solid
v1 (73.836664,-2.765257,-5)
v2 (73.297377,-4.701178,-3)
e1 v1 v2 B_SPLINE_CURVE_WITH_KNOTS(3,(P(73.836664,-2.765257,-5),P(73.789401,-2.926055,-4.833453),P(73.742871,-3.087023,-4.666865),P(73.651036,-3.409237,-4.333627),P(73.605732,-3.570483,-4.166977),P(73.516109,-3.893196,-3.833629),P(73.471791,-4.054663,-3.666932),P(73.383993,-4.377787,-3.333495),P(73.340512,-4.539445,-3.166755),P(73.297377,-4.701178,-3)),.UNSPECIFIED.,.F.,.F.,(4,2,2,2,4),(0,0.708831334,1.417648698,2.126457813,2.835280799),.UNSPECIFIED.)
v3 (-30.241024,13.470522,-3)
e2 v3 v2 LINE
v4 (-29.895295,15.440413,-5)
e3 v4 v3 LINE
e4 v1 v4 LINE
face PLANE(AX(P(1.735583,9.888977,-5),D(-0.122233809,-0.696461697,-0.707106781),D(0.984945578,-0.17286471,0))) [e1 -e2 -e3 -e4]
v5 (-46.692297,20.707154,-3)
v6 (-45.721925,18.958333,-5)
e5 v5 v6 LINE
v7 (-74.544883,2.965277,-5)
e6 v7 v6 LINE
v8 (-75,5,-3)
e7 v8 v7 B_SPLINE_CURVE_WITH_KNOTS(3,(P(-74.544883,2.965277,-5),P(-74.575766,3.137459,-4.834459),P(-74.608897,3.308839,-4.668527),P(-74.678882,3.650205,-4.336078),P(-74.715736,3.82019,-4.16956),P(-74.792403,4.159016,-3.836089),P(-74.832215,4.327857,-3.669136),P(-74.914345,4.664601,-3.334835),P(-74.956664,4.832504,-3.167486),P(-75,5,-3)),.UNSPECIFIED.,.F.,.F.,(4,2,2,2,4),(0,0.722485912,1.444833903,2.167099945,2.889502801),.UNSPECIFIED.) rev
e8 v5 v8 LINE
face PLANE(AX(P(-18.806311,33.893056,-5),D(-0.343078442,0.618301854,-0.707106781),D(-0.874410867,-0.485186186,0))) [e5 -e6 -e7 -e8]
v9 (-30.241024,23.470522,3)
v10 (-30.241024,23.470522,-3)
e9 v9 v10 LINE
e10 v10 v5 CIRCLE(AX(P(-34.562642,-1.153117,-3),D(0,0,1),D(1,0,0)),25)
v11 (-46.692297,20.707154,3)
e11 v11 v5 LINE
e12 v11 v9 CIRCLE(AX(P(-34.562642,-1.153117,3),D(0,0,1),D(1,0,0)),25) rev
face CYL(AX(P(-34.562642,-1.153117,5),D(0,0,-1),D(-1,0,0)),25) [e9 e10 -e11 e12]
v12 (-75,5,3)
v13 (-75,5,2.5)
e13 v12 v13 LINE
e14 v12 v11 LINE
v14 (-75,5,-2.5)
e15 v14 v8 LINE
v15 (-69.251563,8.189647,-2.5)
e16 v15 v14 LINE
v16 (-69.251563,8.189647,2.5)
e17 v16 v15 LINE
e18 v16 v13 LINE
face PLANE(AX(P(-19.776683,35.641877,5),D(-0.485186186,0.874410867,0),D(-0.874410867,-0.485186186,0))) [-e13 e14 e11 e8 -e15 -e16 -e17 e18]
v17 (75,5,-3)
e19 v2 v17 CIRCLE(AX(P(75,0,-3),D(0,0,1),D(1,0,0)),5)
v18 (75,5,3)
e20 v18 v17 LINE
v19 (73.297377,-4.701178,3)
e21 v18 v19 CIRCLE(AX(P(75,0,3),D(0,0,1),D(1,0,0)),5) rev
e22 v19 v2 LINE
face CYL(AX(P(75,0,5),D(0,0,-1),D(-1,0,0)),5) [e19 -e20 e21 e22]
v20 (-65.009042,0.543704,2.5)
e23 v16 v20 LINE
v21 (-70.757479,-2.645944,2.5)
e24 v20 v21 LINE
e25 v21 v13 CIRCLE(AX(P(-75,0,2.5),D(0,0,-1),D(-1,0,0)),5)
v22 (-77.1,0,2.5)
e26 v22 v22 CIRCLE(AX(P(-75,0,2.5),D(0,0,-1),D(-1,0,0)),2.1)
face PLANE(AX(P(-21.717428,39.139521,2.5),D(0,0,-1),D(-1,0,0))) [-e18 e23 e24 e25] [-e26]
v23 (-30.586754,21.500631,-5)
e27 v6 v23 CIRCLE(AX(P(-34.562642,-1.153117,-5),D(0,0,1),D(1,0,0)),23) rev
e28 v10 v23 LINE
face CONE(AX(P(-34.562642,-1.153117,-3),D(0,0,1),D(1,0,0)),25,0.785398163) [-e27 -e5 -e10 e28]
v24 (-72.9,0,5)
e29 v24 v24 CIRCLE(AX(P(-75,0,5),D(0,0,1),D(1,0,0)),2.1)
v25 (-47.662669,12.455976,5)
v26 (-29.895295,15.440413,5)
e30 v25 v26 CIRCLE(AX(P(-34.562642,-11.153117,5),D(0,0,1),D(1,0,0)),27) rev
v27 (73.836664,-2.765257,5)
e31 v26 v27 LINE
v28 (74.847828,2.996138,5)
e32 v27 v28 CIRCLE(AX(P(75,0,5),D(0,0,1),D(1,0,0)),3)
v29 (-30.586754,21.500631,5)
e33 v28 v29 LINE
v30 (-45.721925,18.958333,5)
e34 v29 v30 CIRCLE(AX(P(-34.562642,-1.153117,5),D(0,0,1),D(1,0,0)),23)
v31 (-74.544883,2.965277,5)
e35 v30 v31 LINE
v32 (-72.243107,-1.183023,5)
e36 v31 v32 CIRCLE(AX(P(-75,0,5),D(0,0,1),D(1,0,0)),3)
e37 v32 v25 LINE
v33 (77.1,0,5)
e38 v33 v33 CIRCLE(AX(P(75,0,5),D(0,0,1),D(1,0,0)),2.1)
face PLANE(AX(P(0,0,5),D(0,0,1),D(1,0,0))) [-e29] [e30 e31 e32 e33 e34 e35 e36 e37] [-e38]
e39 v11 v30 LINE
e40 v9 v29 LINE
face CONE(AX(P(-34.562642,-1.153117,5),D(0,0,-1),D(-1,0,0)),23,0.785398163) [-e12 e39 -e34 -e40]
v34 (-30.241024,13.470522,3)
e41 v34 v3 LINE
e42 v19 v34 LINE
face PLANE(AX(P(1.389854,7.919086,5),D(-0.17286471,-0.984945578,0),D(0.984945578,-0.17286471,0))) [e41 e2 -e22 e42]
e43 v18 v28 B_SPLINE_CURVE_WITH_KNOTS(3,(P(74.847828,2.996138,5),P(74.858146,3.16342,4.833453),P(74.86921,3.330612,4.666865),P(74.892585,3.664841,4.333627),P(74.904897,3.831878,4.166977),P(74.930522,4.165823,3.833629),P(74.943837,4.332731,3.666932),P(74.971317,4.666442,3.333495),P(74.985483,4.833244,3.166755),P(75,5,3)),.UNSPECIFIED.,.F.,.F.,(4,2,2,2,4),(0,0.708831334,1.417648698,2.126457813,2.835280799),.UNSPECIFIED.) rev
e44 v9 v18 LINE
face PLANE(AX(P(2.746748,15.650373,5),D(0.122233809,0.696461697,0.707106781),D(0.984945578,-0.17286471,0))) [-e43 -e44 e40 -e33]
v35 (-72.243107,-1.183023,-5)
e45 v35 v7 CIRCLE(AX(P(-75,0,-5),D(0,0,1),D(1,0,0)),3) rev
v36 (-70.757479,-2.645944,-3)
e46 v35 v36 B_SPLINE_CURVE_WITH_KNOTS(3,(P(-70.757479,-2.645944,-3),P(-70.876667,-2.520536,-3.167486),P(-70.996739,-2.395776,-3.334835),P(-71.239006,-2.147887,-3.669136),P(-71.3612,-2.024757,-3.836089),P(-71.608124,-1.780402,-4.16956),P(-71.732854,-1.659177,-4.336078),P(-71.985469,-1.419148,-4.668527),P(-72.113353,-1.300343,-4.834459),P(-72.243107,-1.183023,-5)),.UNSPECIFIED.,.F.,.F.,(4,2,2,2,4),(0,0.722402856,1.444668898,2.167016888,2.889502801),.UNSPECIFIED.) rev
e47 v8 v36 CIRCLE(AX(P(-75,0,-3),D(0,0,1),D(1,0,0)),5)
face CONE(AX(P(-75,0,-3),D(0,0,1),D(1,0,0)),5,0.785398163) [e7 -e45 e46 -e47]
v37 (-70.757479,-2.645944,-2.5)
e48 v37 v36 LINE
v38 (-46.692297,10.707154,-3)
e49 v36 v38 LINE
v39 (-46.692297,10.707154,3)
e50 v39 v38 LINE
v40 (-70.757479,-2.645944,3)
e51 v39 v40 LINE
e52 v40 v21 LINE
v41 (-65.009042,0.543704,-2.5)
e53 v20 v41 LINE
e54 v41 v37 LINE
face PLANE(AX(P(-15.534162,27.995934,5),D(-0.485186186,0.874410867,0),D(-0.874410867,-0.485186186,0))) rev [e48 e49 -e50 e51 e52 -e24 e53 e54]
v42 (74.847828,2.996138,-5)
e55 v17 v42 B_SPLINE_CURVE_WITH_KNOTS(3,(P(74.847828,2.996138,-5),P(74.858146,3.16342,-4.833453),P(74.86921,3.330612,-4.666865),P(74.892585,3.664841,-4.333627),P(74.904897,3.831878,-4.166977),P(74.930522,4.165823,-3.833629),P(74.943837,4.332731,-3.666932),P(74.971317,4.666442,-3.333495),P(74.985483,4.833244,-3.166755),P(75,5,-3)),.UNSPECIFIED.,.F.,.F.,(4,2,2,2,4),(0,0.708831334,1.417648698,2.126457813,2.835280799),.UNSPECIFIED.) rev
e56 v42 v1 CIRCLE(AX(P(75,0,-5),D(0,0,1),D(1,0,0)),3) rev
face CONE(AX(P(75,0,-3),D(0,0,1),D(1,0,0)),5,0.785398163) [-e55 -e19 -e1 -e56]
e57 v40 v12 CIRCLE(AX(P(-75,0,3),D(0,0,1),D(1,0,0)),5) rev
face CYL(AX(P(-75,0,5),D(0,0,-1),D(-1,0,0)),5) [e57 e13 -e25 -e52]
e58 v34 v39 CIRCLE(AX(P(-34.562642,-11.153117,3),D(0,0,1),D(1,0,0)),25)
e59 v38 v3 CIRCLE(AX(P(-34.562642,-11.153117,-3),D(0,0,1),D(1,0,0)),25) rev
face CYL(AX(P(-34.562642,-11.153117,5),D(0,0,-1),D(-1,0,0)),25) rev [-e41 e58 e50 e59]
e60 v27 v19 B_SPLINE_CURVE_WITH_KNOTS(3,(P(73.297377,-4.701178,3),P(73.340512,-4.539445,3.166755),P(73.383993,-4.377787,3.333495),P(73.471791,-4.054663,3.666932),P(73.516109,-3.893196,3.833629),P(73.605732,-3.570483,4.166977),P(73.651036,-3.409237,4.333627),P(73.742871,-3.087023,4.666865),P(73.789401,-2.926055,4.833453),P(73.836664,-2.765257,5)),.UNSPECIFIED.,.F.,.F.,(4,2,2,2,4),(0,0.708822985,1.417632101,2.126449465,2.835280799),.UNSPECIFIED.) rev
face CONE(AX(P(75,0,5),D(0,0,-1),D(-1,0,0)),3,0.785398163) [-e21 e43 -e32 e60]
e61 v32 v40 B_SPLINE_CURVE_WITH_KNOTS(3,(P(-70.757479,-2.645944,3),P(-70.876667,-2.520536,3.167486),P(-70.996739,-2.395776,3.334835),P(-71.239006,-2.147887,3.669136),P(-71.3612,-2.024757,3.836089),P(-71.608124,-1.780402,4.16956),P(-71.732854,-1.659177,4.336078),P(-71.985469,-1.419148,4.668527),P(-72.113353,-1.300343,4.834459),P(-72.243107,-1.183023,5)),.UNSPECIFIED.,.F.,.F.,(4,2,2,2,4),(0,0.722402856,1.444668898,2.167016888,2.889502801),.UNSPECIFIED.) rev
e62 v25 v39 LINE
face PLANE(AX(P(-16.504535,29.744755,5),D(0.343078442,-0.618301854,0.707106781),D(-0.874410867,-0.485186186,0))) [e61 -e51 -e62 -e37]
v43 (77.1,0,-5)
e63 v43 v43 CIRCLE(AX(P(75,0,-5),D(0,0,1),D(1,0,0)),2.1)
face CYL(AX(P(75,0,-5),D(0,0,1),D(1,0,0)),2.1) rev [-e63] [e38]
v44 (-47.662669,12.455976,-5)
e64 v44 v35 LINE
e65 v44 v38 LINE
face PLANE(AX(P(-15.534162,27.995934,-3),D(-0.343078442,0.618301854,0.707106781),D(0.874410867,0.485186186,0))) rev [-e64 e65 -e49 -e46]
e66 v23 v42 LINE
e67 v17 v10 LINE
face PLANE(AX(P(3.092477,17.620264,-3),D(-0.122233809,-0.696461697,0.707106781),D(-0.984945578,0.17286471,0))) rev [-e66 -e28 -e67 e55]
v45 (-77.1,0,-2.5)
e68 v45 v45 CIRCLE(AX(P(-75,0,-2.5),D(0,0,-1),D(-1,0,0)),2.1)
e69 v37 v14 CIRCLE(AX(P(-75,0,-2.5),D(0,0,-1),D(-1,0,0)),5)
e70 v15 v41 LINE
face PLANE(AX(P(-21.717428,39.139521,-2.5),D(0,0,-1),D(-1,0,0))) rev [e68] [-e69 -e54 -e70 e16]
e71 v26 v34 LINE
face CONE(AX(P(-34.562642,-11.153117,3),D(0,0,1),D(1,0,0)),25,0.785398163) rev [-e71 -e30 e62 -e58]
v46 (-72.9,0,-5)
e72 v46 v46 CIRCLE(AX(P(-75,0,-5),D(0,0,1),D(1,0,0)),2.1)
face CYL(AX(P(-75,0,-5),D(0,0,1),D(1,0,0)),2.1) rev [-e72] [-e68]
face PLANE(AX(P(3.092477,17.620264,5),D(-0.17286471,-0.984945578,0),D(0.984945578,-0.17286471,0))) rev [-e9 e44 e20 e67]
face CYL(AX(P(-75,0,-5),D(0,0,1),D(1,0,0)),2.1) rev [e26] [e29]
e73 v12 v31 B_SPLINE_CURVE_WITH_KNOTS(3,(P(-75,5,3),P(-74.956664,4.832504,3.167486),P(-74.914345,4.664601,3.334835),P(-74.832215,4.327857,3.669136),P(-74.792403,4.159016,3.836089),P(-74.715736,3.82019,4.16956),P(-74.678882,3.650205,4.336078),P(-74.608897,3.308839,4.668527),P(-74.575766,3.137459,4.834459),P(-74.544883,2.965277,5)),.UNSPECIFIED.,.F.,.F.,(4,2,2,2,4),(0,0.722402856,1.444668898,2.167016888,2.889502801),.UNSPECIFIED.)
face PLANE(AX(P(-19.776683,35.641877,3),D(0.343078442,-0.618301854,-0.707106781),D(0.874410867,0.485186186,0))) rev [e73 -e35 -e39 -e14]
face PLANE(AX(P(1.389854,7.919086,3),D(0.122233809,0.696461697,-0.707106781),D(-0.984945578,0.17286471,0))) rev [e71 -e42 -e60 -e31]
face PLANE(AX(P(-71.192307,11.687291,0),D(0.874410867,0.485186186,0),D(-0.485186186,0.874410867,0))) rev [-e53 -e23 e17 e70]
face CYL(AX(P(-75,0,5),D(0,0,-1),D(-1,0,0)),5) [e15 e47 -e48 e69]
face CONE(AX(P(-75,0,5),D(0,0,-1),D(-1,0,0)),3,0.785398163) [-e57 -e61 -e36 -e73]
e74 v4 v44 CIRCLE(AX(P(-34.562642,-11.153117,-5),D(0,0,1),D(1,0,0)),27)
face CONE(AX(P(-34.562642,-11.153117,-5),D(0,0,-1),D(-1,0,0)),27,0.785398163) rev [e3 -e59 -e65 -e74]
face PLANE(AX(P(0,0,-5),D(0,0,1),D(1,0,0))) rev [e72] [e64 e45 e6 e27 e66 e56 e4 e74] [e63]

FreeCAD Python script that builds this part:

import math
import FreeCAD as App
import Part
import Sketcher


def edges_at(feature, points):
    """Names of the edges that pass closest to the given points."""
    edges = feature.Shape.Edges
    near = lambda p: min(range(len(edges)), key=lambda i: edges[i].distToShape(Part.Vertex(*p))[0])
    return sorted({f"Edge{near(p) + 1}" for p in points})


def add_polygon(sketch, points):
    """Adds a closed chain of lines whose ends are joined by coincident constraints."""
    first, n = sketch.GeometryCount, len(points)
    for a, b in zip(points, points[1:] + points[:1]):
        sketch.addGeometry(Part.LineSegment(App.Vector(*a, 0), App.Vector(*b, 0)), False)
    for i in range(n):
        sketch.addConstraint(Sketcher.Constraint("Coincident", first + i, 2, first + (i + 1) % n, 1))

doc = App.newDocument("Part")
body = doc.addObject("PartDesign::Body", "Body")

# Sketch on XY plane
sketch1 = doc.addObject("Sketcher::SketchObject", "Sketch")
body.addObject(sketch1)
sketch1.AttachmentSupport = (doc.XY_Plane, [""])
sketch1.MapMode = "FlatFace"
sketch1.addGeometry([
    Part.ArcOfCircle(Part.Circle(App.Vector(75, 0, 0), App.Vector(0, 0, 1), 5), math.radians(-110), math.radians(0)),  # 0
    Part.ArcOfCircle(Part.Circle(App.Vector(75, 0, 0), App.Vector(0, 0, 1), 5), math.radians(0), math.radians(90)),  # 1
    Part.LineSegment(App.Vector(75, 5, 0), App.Vector(-30, 23, 0)),  # 2
    Part.ArcOfCircle(Part.Circle(App.Vector(-35, -1, 0), App.Vector(0, 0, 1), 25), math.radians(80), math.radians(119)),  # 3
    Part.LineSegment(App.Vector(-47, 21, 0), App.Vector(-75, 5, 0)),  # 4
    Part.ArcOfCircle(Part.Circle(App.Vector(-75, 0, 0), App.Vector(0, 0, 1), 5), math.radians(90), math.radians(328)),  # 5
    Part.LineSegment(App.Vector(-71, -3, 0), App.Vector(-66, 0, 0)),  # 6
    Part.LineSegment(App.Vector(-66, 0, 0), App.Vector(-47, 11, 0)),  # 7
    Part.ArcOfCircle(Part.Circle(App.Vector(-35, -11, 0), App.Vector(0, 0, 1), 25), math.radians(80), math.radians(119)),  # 8
    Part.LineSegment(App.Vector(-30, 13, 0), App.Vector(73, -5, 0)),  # 9
], False)
sketch1.addConstraint([
    Sketcher.Constraint("Tangent", 0, 2, 1, 1),
    Sketcher.Constraint("Coincident", 1, 2, 2, 1),
    Sketcher.Constraint("Tangent", 2, 2, 3, 1),
    Sketcher.Constraint("Tangent", 3, 2, 4, 1),
    Sketcher.Constraint("Coincident", 4, 2, 5, 1),
    Sketcher.Constraint("Coincident", 5, 2, 6, 1),
    Sketcher.Constraint("Coincident", 6, 2, 7, 1),
    Sketcher.Constraint("Tangent", 7, 2, 8, 2),
    Sketcher.Constraint("Tangent", 8, 1, 9, 1),
    Sketcher.Constraint("Coincident", 9, 2, 0, 1),
    Sketcher.Constraint("Equal", 0, 1),
    Sketcher.Constraint("Equal", 1, 5),
    Sketcher.Constraint("Equal", 3, 8),
    Sketcher.Constraint("Symmetric", 0, 3, 5, 3, -1, 1),
    Sketcher.Constraint("Symmetric", 1, 2, 4, 2, -2),
    Sketcher.Constraint("PointOnObject", 0, 2, -1),
    Sketcher.Constraint("PointOnObject", 6, 2, -1),
    Sketcher.Constraint("Parallel", 4, 6),
    Sketcher.Constraint("Parallel", 6, 7),
    Sketcher.Constraint("Parallel", 2, 9),
    Sketcher.Constraint("Vertical", 3, 3, 8, 3),
    Sketcher.Constraint("Vertical", 0, 3, 1, 2),
    Sketcher.Constraint("Radius", 0, 5.0),
    Sketcher.Constraint("Radius", 3, 25.0),
    Sketcher.Constraint("DistanceX", -1, 1, 0, 3, 75.0),
    Sketcher.Constraint("DistanceY", 8, 3, 3, 3, 10.0),
    Sketcher.Constraint("DistanceY", 5, 2, 3, 2, 23.353098),
    Sketcher.Constraint("DistanceX", 8, 1, 9, 2, 103.538401),
])
pad1 = doc.addObject("PartDesign::Pad", "Pad")
body.addObject(pad1)
pad1.Profile = sketch1
pad1.Length = 10
pad1.Midplane = True
doc.recompute()

chamfer = doc.addObject("PartDesign::Chamfer", "Chamfer")
body.addObject(chamfer)
chamfer.Base = (pad1, edges_at(pad1, [
    (-38.704, 13.501, -5),
    (-56.341, 5.354, -5),
    (-79.372, -2.426, -5),
    (-60.846, 12.854, -5),
    (-38.704, 23.501, -5),
    (22.379, 14.235, -5),
    (77.871, -4.093, -5),
    (21.528, 4.385, -5),
]))
chamfer.Size = 2

# Sketch on an angled plane
sketch2 = doc.addObject("Sketcher::SketchObject", "Sketch001")
body.addObject(sketch2)
sketch2.Placement = App.Placement(App.Vector(-19.776683, 35.641877, 0), App.Rotation(App.Vector(0.874410867, 0.485186186, 0), App.Vector(0, 0, -0.999999999), App.Vector(-0.485186186, 0.874410867, 0), "ZXY"))
add_polygon(sketch2, [(-74.6, 2.5), (-74.6, -2.5), (-56.6, -2.5), (-56.6, 2.5)])  # lines 0-3
sketch2.addConstraint([
    Sketcher.Constraint("Vertical", 0),
    Sketcher.Constraint("Horizontal", 1),
    Sketcher.Constraint("Vertical", 2),
    Sketcher.Constraint("Horizontal", 3),
    Sketcher.Constraint("DistanceX", 1, 1, 1, 2, 18.0),
    Sketcher.Constraint("DistanceY", 0, 2, 0, 1, 5.0),
    Sketcher.Constraint("DistanceY", 0, 2, -1, 1, 2.5),
    Sketcher.Constraint("DistanceX", 0, 2, -1, 1, 74.580815),
])
pocket1 = doc.addObject("PartDesign::Pocket", "Pocket")
body.addObject(pocket1)
pocket1.Profile = sketch2
pocket1.Type = "ThroughAll"
pocket1.Midplane = True

# Sketch on XY plane
sketch3 = doc.addObject("Sketcher::SketchObject", "Sketch002")
body.addObject(sketch3)
sketch3.AttachmentSupport = (doc.XY_Plane, [""])
sketch3.MapMode = "FlatFace"
sketch3.AttachmentOffset = App.Placement(App.Vector(0, 0, 5), App.Rotation())
sketch3.addGeometry([
    Part.Circle(App.Vector(-75, 0, 0), App.Vector(0, 0, 1), 2.1),
    Part.Circle(App.Vector(75, 0, 0), App.Vector(0, 0, 1), 2.1),
], False)
sketch3.addConstraint([
    Sketcher.Constraint("Equal", 0, 1),
    Sketcher.Constraint("Symmetric", 0, 3, 1, 3, -1, 1),
    Sketcher.Constraint("PointOnObject", 0, 3, -1),
    Sketcher.Constraint("Diameter", 0, 4.2),
    Sketcher.Constraint("DistanceX", 0, 3, -1, 1, 75.0),
])
pocket2 = doc.addObject("PartDesign::Pocket", "Pocket001")
body.addObject(pocket2)
pocket2.Profile = sketch3
pocket2.Type = "ThroughAll"
doc.recompute()

chamfer2 = doc.addObject("PartDesign::Chamfer", "Chamfer001")
body.addObject(chamfer2)
chamfer2.Base = (pocket2, edges_at(pocket2, [
    (77.871, -4.093, 5),
    (22.379, 14.235, 5),
    (-38.704, 23.501, 5),
    (-60.846, 12.854, 5),
    (-79.372, -2.426, 5),
    (21.528, 4.385, 5),
    (-56.341, 5.354, 5),
    (-38.704, 13.501, 5),
]))
chamfer2.Size = 2

doc.recompute()
